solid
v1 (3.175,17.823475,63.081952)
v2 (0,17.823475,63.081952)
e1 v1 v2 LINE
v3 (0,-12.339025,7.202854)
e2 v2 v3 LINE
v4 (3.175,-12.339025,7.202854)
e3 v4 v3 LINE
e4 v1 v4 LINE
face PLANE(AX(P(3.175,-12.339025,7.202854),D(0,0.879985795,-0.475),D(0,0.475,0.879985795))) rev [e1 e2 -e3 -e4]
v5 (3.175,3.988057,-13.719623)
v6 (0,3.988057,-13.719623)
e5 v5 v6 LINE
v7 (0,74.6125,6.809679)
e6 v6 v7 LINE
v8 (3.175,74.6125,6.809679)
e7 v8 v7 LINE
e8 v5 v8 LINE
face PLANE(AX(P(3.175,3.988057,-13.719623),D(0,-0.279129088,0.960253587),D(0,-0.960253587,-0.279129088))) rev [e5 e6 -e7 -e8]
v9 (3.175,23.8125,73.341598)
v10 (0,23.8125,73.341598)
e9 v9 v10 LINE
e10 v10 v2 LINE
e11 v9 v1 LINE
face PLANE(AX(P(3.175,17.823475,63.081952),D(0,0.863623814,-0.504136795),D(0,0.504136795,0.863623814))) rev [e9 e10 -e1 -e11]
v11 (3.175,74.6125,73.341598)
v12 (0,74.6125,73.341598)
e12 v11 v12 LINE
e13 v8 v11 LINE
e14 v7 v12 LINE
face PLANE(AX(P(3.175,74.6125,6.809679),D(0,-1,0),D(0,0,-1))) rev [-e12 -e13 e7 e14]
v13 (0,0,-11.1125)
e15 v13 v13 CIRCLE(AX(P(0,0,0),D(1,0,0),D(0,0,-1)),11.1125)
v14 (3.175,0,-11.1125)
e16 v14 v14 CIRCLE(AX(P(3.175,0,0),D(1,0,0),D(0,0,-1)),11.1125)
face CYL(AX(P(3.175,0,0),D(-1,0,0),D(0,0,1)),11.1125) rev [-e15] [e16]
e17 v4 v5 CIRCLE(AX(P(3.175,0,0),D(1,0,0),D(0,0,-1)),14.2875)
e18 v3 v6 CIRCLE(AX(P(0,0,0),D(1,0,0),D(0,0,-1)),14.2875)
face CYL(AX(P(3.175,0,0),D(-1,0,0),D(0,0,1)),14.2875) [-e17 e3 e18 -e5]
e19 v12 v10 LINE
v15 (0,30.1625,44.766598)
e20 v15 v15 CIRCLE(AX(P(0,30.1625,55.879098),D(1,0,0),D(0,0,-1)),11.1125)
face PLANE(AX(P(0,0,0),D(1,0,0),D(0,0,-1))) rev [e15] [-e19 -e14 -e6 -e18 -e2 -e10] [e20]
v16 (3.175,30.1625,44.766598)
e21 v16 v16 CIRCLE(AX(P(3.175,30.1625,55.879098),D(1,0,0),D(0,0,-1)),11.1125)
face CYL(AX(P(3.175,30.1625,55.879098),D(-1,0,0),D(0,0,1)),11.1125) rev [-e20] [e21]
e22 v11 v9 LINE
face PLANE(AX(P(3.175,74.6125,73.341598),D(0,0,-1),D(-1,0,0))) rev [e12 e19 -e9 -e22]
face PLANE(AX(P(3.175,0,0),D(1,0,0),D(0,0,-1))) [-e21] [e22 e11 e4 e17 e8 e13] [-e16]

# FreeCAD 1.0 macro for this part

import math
import FreeCAD as App
import Part
import Sketcher
Q = App.Units.Quantity

doc = App.newDocument("Part")
body = doc.addObject("PartDesign::Body", "Body")

# Sketch on YZ plane
sketch1 = body.newObject("Sketcher::SketchObject", "Sketch")
sketch1.AttachmentSupport = (doc.getObject("YZ_Plane"), [""])
sketch1.MapMode = "FlatFace"
sketch1.addGeometry(Part.LineSegment(App.Vector(4, -14, 0), App.Vector(75, 7, 0)), False)
sketch1.addGeometry(Part.LineSegment(App.Vector(75, 7, 0), App.Vector(75, 73, 0)), False)
sketch1.addGeometry(Part.LineSegment(App.Vector(75, 73, 0), App.Vector(24, 73, 0)), False)
sketch1.addGeometry(Part.LineSegment(App.Vector(24, 73, 0), App.Vector(18, 63, 0)), False)
sketch1.addGeometry(Part.LineSegment(App.Vector(18, 63, 0), App.Vector(-12, 7, 0)), False)
sketch1.addGeometry(Part.ArcOfCircle(Part.Circle(App.Vector(0, 0, 0), App.Vector(0, 0, 1), 14), math.radians(150), math.radians(286)), False)
sketch1.addGeometry(Part.Circle(App.Vector(0, 0, 0), App.Vector(0, 0, 1), 11), False)
sketch1.addGeometry(Part.Circle(App.Vector(30, 56, 0), App.Vector(0, 0, 1), 11), False)
sketch1.addConstraint(Sketcher.Constraint("Coincident", 0, 2, 1, 1))
sketch1.addConstraint(Sketcher.Constraint("Coincident", 1, 2, 2, 1))
sketch1.addConstraint(Sketcher.Constraint("Coincident", 2, 2, 3, 1))
sketch1.addConstraint(Sketcher.Constraint("Coincident", 3, 2, 4, 1))
sketch1.addConstraint(Sketcher.Constraint("Coincident", 4, 2, 5, 1))
sketch1.addConstraint(Sketcher.Constraint("Tangent", 5, 2, 0, 1))
sketch1.addConstraint(Sketcher.Constraint("Vertical", 1))
sketch1.addConstraint(Sketcher.Constraint("Horizontal", 2))
sketch1.addConstraint(Sketcher.Constraint("Coincident", 5, 3, -1, 1))
sketch1.addConstraint(Sketcher.Constraint("Coincident", 6, 3, -1, 1))
sketch1.addConstraint(Sketcher.Constraint("Equal", 6, 7))
sketch1.addConstraint(Sketcher.Constraint("DistanceX", 2, 2, 2, 1, Q("2 in")))
sketch1.addConstraint(Sketcher.Constraint("Diameter", 6, Q("0.875 in")))
sketch1.addConstraint(Sketcher.Constraint("Radius", 5, Q("0.5625 in")))
sketch1.addConstraint(Sketcher.Constraint("Distance", 4, Q("2.5 in")))
sketch1.addConstraint(Sketcher.Constraint("DistanceX", 7, 3, 0, 2, Q("1.75 in")))
sketch1.addConstraint(Sketcher.Constraint("DistanceX", -1, 1, 7, 3, Q("1.1875 in")))
sketch1.addConstraint(Sketcher.Constraint("DistanceY", 7, 3, 1, 2, Q("0.6875 in")))
sketch1.addConstraint(Sketcher.Constraint("DistanceX", 4, 2, 3, 2, Q("1.1875 in")))
sketch1.addConstraint(Sketcher.Constraint("Distance", 0, 73.5477))
sketch1.addConstraint(Sketcher.Constraint("DistanceY", 1, 1, 1, 2, 66.531919))
sketch1.addConstraint(Sketcher.Constraint("Distance", 3, 11.879762))
pad1 = body.newObject("PartDesign::Pad", "Pad")
pad1.Profile = sketch1
pad1.Length = Q("0.125 in")

doc.recompute()
